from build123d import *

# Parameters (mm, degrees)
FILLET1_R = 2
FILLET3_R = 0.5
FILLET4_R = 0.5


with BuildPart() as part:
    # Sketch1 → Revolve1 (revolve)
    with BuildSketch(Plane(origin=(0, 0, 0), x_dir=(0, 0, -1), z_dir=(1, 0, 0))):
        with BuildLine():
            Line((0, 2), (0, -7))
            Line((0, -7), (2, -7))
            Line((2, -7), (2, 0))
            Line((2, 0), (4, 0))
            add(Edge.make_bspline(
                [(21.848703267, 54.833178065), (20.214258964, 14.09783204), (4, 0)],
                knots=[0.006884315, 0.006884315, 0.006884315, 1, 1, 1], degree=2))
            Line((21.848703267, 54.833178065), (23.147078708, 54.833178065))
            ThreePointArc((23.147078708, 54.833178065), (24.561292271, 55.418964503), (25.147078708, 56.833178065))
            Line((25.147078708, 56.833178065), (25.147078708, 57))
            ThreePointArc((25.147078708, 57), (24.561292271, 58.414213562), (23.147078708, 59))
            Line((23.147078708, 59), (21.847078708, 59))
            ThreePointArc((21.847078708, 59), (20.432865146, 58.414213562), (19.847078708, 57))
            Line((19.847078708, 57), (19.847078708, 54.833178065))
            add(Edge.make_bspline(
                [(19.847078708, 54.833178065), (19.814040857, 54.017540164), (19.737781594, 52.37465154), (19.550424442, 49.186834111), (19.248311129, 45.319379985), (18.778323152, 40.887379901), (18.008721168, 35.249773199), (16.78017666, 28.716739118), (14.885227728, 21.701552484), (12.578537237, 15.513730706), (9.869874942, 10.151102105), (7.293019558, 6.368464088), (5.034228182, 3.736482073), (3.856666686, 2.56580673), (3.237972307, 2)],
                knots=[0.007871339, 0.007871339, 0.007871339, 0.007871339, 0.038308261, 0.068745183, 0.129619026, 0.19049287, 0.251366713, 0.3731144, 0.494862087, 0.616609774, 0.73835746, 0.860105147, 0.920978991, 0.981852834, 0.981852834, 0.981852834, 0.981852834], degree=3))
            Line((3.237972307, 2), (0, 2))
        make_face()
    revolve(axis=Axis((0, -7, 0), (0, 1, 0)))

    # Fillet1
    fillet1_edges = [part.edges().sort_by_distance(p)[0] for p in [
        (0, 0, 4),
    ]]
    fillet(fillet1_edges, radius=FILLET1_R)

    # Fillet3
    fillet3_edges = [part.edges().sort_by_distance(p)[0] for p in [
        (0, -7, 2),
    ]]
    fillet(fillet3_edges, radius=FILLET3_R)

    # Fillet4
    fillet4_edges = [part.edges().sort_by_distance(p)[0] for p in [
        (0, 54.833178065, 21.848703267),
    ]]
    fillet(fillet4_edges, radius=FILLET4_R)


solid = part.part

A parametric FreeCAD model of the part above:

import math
import FreeCAD as App
import Part
import Sketcher
from FreeCAD import Vector
Q = App.Units.Quantity


def edges_at(feature, points):
    """Names of the edges that pass closest to the given points."""
    edges = feature.Shape.Edges
    near = lambda p: min(range(len(edges)), key=lambda i: edges[i].distToShape(Part.Vertex(*p))[0])
    return sorted({f"Edge{near(p) + 1}" for p in points})

doc = App.newDocument("Part")
body = doc.addObject("PartDesign::Body", "Body")

# Sketch on YZ plane
sketch1 = body.newObject("Sketcher::SketchObject", "Sketch")
sketch1.AttachmentSupport = (doc.getObject("YZ_Plane"), [""])
sketch1.MapMode = "FlatFace"
sketch1.addGeometry(Part.LineSegment(Vector(2, 0, 0), Vector(-7, 0, 0)), False)
sketch1.addGeometry(Part.LineSegment(Vector(-7, 0, 0), Vector(-7, -2, 0)), False)
sketch1.addGeometry(Part.LineSegment(Vector(-7, -2, 0), Vector(0, -2, 0)), False)
sketch1.addGeometry(Part.LineSegment(Vector(0, -2, 0), Vector(0, -4, 0)), False)
sketch1.addGeometry(Part.BSplineCurve([Vector(54.833178, -21.848703, 0), Vector(14.097832, -20.214259, 0), Vector(0, -4, 0)], [3, 3], [0.006884315, 1], False, 2, [1, 1, 1], False), False)
sketch1.addGeometry(Part.LineSegment(Vector(54.833178, -21.848703, 0), Vector(54.833178, -23.147079, 0)), False)
sketch1.addGeometry(Part.ArcOfCircle(Part.Circle(Vector(56.833178, -23.147079, 0), Vector(0, 0, 1), 2), math.radians(180), math.radians(270)), False)
sketch1.addGeometry(Part.LineSegment(Vector(56.833178, -25.147079, 0), Vector(57, -25.147079, 0)), False)
sketch1.addGeometry(Part.ArcOfCircle(Part.Circle(Vector(57, -23.147079, 0), Vector(0, 0, 1), 2), math.radians(-90), math.radians(0)), False)
sketch1.addGeometry(Part.LineSegment(Vector(59, -23.147079, 0), Vector(59, -21.847079, 0)), False)
sketch1.addGeometry(Part.ArcOfCircle(Part.Circle(Vector(57, -21.847079, 0), Vector(0, 0, 1), 2), math.radians(0), math.radians(90)), False)
sketch1.addGeometry(Part.LineSegment(Vector(57, -19.847079, 0), Vector(54.833178, -19.847079, 0)), False)
sketch1.addGeometry(Part.BSplineCurve([Vector(54.833178, -19.847079, 0), Vector(54.01754, -19.814041, 0), Vector(52.374652, -19.737782, 0), Vector(49.186834, -19.550424, 0), Vector(45.31938, -19.248311, 0), Vector(40.88738, -18.778323, 0), Vector(35.249773, -18.008721, 0), Vector(28.716739, -16.780177, 0), Vector(21.701552, -14.885228, 0), Vector(15.513731, -12.578537, 0), Vector(10.151102, -9.869875, 0), Vector(6.368464, -7.29302, 0), Vector(3.736482, -5.034228, 0), Vector(2.565807, -3.856667, 0), Vector(2, -3.237972, 0)], [4, 1, 1, 1, 1, 1, 1, 1, 1, 1, 1, 1, 4], [0.007871339, 0.038308261, 0.068745183, 0.129619026, 0.19049287, 0.251366713, 0.3731144, 0.494862087, 0.616609774, 0.73835746, 0.860105147, 0.920978991, 0.981852834], False, 3, [1, 1, 1, 1, 1, 1, 1, 1, 1, 1, 1, 1, 1, 1, 1], False), False)
sketch1.addGeometry(Part.LineSegment(Vector(2, -3.237972, 0), Vector(2, 0, 0)), False)
sketch1.addConstraint(Sketcher.Constraint("Block", 4))
sketch1.addConstraint(Sketcher.Constraint("Block", 12))
sketch1.addConstraint(Sketcher.Constraint("Coincident", 0, 2, 1, 1))
sketch1.addConstraint(Sketcher.Constraint("Coincident", 1, 2, 2, 1))
sketch1.addConstraint(Sketcher.Constraint("Coincident", 2, 2, 3, 1))
sketch1.addConstraint(Sketcher.Constraint("Coincident", 3, 2, 4, 2))
sketch1.addConstraint(Sketcher.Constraint("Coincident", 4, 1, 5, 1))
sketch1.addConstraint(Sketcher.Constraint("Tangent", 5, 2, 6, 1))
sketch1.addConstraint(Sketcher.Constraint("Tangent", 6, 2, 7, 1))
sketch1.addConstraint(Sketcher.Constraint("Tangent", 7, 2, 8, 1))
sketch1.addConstraint(Sketcher.Constraint("Tangent", 8, 2, 9, 1))
sketch1.addConstraint(Sketcher.Constraint("Tangent", 9, 2, 10, 1))
sketch1.addConstraint(Sketcher.Constraint("Tangent", 10, 2, 11, 1))
sketch1.addConstraint(Sketcher.Constraint("Coincident", 11, 2, 12, 1))
sketch1.addConstraint(Sketcher.Constraint("Coincident", 12, 2, 13, 1))
sketch1.addConstraint(Sketcher.Constraint("Coincident", 13, 2, 0, 1))
sketch1.addConstraint(Sketcher.Constraint("Horizontal", 0))
sketch1.addConstraint(Sketcher.Constraint("Vertical", 1))
sketch1.addConstraint(Sketcher.Constraint("Horizontal", 2))
sketch1.addConstraint(Sketcher.Constraint("Vertical", 3))
sketch1.addConstraint(Sketcher.Constraint("Vertical", 5))
sketch1.addConstraint(Sketcher.Constraint("Horizontal", 7))
sketch1.addConstraint(Sketcher.Constraint("Vertical", 9))
sketch1.addConstraint(Sketcher.Constraint("Horizontal", 11))
sketch1.addConstraint(Sketcher.Constraint("Vertical", 13))
sketch1.addConstraint(Sketcher.Constraint("Equal", 6, 8))
sketch1.addConstraint(Sketcher.Constraint("Equal", 8, 10))
sketch1.addConstraint(Sketcher.Constraint("PointOnObject", 0, 2, -1))
sketch1.addConstraint(Sketcher.Constraint("Equal", 1, 3))
sketch1.addConstraint(Sketcher.Constraint("Radius", 6, Q("2 mm")))
sketch1.addConstraint(Sketcher.Constraint("DistanceX", 0, 2, 0, 1, Q("9 mm")))
sketch1.addConstraint(Sketcher.Constraint("DistanceY", 9, 1, 9, 2, Q("1.3 mm")))
sketch1.addConstraint(Sketcher.Constraint("DistanceX", -1, 1, 8, 3, Q("57 mm")))
revolution = body.newObject("PartDesign::Revolution", "Revolution")
revolution.Profile = sketch1
revolution.ReferenceAxis = (sketch1, ["H_Axis"])
revolution.Angle = 360
doc.recompute()

fillet = body.newObject("PartDesign::Fillet", "Fillet")
fillet.Base = (revolution, edges_at(revolution, [(0, 0, 4)]))
fillet.Radius = 2
doc.recompute()

fillet2 = body.newObject("PartDesign::Fillet", "Fillet001")
fillet2.Base = (fillet, edges_at(fillet, [(0, -7, 2)]))
fillet2.Radius = 0.5
doc.recompute()

fillet3 = body.newObject("PartDesign::Fillet", "Fillet002")
fillet3.Base = (fillet2, edges_at(fillet2, [(0, 54.833, 21.849)]))
fillet3.Radius = 0.5

doc.recompute()
